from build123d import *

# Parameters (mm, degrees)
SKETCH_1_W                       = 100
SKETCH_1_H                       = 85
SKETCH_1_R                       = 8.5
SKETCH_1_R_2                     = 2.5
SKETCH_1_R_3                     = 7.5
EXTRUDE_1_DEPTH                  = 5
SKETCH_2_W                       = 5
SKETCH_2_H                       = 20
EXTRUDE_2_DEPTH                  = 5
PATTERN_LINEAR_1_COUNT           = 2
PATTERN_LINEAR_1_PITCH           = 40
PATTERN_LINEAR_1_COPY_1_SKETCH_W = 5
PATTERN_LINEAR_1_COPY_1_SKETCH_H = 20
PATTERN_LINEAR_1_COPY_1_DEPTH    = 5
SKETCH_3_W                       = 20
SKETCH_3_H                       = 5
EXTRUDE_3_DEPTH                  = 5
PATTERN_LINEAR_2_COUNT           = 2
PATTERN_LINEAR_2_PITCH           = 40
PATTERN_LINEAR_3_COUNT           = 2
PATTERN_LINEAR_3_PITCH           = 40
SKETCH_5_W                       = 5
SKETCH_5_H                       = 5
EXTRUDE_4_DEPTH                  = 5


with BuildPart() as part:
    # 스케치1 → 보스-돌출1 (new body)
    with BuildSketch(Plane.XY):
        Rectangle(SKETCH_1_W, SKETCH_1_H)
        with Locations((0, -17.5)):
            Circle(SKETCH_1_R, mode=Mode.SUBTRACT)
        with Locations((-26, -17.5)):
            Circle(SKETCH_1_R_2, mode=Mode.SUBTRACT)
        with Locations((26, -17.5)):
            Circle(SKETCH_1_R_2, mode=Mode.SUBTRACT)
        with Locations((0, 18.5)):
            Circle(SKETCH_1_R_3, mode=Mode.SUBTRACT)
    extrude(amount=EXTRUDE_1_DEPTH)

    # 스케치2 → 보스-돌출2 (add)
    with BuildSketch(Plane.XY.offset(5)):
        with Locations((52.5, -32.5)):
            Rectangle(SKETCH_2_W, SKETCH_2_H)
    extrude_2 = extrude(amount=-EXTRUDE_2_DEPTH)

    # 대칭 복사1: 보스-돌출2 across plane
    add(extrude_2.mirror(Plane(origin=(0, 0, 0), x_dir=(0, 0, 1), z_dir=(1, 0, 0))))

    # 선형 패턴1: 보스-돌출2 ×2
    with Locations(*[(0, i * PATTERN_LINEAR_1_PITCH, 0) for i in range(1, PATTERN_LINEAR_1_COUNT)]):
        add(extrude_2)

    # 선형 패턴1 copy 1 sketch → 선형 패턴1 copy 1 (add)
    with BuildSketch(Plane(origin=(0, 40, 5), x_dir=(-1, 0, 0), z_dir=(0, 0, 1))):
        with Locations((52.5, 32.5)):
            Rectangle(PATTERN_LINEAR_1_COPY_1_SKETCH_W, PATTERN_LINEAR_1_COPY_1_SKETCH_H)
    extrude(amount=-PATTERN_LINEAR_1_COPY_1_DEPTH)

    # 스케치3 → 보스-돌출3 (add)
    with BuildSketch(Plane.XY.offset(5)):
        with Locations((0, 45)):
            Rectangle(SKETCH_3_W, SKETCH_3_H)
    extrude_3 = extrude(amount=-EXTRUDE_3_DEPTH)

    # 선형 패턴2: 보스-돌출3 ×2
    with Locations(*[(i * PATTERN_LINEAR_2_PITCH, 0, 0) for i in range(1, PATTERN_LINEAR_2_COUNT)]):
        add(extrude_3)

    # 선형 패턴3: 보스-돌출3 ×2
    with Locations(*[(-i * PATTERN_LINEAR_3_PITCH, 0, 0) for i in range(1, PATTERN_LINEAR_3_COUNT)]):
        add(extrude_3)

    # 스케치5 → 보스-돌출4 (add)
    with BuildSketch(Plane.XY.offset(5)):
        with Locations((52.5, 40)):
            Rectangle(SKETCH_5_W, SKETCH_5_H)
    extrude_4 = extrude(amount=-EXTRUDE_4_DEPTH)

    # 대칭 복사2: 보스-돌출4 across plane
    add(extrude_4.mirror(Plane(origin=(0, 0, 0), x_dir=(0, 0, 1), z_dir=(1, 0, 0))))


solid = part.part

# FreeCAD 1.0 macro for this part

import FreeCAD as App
import Part
import Sketcher

doc = App.newDocument("Part")
body = doc.addObject("PartDesign::Body", "Body")

# Sketch on XY plane
sketch1 = body.newObject("Sketcher::SketchObject", "Sketch")
sketch1.AttachmentSupport = (doc.getObject("XY_Plane"), [""])
sketch1.MapMode = "FlatFace"
sketch1.addGeometry([
    Part.LineSegment(App.Vector(-50, 42.5, 0), App.Vector(-50, -42.5, 0)),  # 0
    Part.LineSegment(App.Vector(-50, -42.5, 0), App.Vector(50, -42.5, 0)),  # 1
    Part.LineSegment(App.Vector(50, -42.5, 0), App.Vector(50, 42.5, 0)),  # 2
    Part.LineSegment(App.Vector(50, 42.5, 0), App.Vector(-50, 42.5, 0)),  # 3
    Part.Circle(App.Vector(-26, -17.5, 0), App.Vector(0, 0, 1), 2.5),  # 4
    Part.Circle(App.Vector(0, -17.5, 0), App.Vector(0, 0, 1), 8.5),  # 5
    Part.Circle(App.Vector(26, -17.5, 0), App.Vector(0, 0, 1), 2.5),  # 6
    Part.Circle(App.Vector(0, 18.5, 0), App.Vector(0, 0, 1), 7.5),  # 7
], False)
sketch1.addConstraint([
    Sketcher.Constraint("Coincident", 0, 2, 1, 1),
    Sketcher.Constraint("Coincident", 1, 2, 2, 1),
    Sketcher.Constraint("Coincident", 2, 2, 3, 1),
    Sketcher.Constraint("Coincident", 3, 2, 0, 1),
    Sketcher.Constraint("Vertical", 0),
    Sketcher.Constraint("Horizontal", 1),
    Sketcher.Constraint("Vertical", 2),
    Sketcher.Constraint("Horizontal", 3),
    Sketcher.Constraint("Equal", 4, 6),
    Sketcher.Constraint("Symmetric", 0, 2, 2, 2, -1, 1),
    Sketcher.Constraint("Symmetric", 4, 3, 6, 3, -2),
    Sketcher.Constraint("PointOnObject", 5, 3, -2),
    Sketcher.Constraint("PointOnObject", 7, 3, -2),
    Sketcher.Constraint("Horizontal", 4, 3, 5, 3),
    Sketcher.Constraint("Diameter", 4, 5.0),
    Sketcher.Constraint("Diameter", 5, 17.0),
    Sketcher.Constraint("Diameter", 7, 15.0),
    Sketcher.Constraint("DistanceX", 1, 1, 1, 2, 100.0),
    Sketcher.Constraint("DistanceY", 0, 2, 0, 1, 85.0),
    Sketcher.Constraint("DistanceX", 4, 3, -1, 1, 26.0),
    Sketcher.Constraint("DistanceY", 5, 3, 7, 3, 36.0),
    Sketcher.Constraint("DistanceY", 0, 2, 4, 3, 25.0),
])
pad1 = body.newObject("PartDesign::Pad", "Pad")
pad1.Profile = sketch1
pad1.Length = 5

# Sketch on XY plane
sketch2 = body.newObject("Sketcher::SketchObject", "Sketch001")
sketch2.AttachmentSupport = (doc.getObject("XY_Plane"), [""])
sketch2.MapMode = "FlatFace"
sketch2.AttachmentOffset = App.Placement(App.Vector(0, 0, 5), App.Rotation())
sketch2.addGeometry([
    Part.LineSegment(App.Vector(50, -22, 0), App.Vector(50, -42, 0)),
    Part.LineSegment(App.Vector(50, -42, 0), App.Vector(55, -42, 0)),
    Part.LineSegment(App.Vector(55, -42, 0), App.Vector(55, -22, 0)),
    Part.LineSegment(App.Vector(55, -22, 0), App.Vector(50, -22, 0)),
], False)
sketch2.addConstraint([
    Sketcher.Constraint("Coincident", 0, 2, 1, 1),
    Sketcher.Constraint("Coincident", 1, 2, 2, 1),
    Sketcher.Constraint("Coincident", 2, 2, 3, 1),
    Sketcher.Constraint("Coincident", 3, 2, 0, 1),
    Sketcher.Constraint("Vertical", 0),
    Sketcher.Constraint("Horizontal", 1),
    Sketcher.Constraint("Vertical", 2),
    Sketcher.Constraint("Horizontal", 3),
    Sketcher.Constraint("DistanceX", 1, 1, 1, 2, 5.0),
    Sketcher.Constraint("DistanceY", 0, 2, 0, 1, 20.0),
    Sketcher.Constraint("DistanceX", -1, 1, 0, 2, 50.0),
    Sketcher.Constraint("DistanceY", 0, 2, -1, 1, 42.5),
])
pad2 = body.newObject("PartDesign::Pad", "Pad001")
pad2.Profile = sketch2
pad2.Length = 5
pad2.Reversed = True
doc.recompute()

mirrored = body.newObject("PartDesign::Mirrored", "Mirrored")
mirrored.Originals = [pad2]
mirrored.MirrorPlane = (doc.getObject("YZ_Plane"), [""])
body.Tip = mirrored
doc.recompute()

linearpattern = body.newObject("PartDesign::LinearPattern", "LinearPattern")
linearpattern.Originals = [pad2]
linearpattern.Direction = (doc.getObject("Y_Axis"), [""])
linearpattern.Mode = "offset"
linearpattern.Offset = 40
linearpattern.Occurrences = 2
body.Tip = linearpattern

# Sketch on XY plane
sketch3 = body.newObject("Sketcher::SketchObject", "Sketch002")
sketch3.AttachmentSupport = (doc.getObject("XY_Plane"), [""])
sketch3.MapMode = "FlatFace"
sketch3.AttachmentOffset = App.Placement(App.Vector(0, 0, 5), App.Rotation())
sketch3.addGeometry([
    Part.LineSegment(App.Vector(-50, -2, 0), App.Vector(-50, 18, 0)),
    Part.LineSegment(App.Vector(-50, 18, 0), App.Vector(-55, 18, 0)),
    Part.LineSegment(App.Vector(-55, 18, 0), App.Vector(-55, -2, 0)),
    Part.LineSegment(App.Vector(-55, -2, 0), App.Vector(-50, -2, 0)),
], False)
sketch3.addConstraint([
    Sketcher.Constraint("Coincident", 0, 2, 1, 1),
    Sketcher.Constraint("Coincident", 1, 2, 2, 1),
    Sketcher.Constraint("Coincident", 2, 2, 3, 1),
    Sketcher.Constraint("Coincident", 3, 2, 0, 1),
    Sketcher.Constraint("Vertical", 0),
    Sketcher.Constraint("Horizontal", 1),
    Sketcher.Constraint("Vertical", 2),
    Sketcher.Constraint("Horizontal", 3),
    Sketcher.Constraint("DistanceX", 1, 2, 1, 1, 5.0),
    Sketcher.Constraint("DistanceY", 0, 1, 0, 2, 20.0),
    Sketcher.Constraint("DistanceX", 0, 2, -1, 1, 50.0),
    Sketcher.Constraint("DistanceY", -1, 1, 0, 2, 17.5),
])
pad3 = body.newObject("PartDesign::Pad", "Pad002")
pad3.Profile = sketch3
pad3.Length = 5
pad3.Reversed = True

# Sketch on XY plane
sketch4 = body.newObject("Sketcher::SketchObject", "Sketch003")
sketch4.AttachmentSupport = (doc.getObject("XY_Plane"), [""])
sketch4.MapMode = "FlatFace"
sketch4.AttachmentOffset = App.Placement(App.Vector(0, 0, 5), App.Rotation())
sketch4.addGeometry([
    Part.LineSegment(App.Vector(-10, 48, 0), App.Vector(-10, 42, 0)),
    Part.LineSegment(App.Vector(-10, 42, 0), App.Vector(10, 42, 0)),
    Part.LineSegment(App.Vector(10, 42, 0), App.Vector(10, 48, 0)),
    Part.LineSegment(App.Vector(10, 48, 0), App.Vector(-10, 48, 0)),
], False)
sketch4.addConstraint([
    Sketcher.Constraint("Coincident", 0, 2, 1, 1),
    Sketcher.Constraint("Coincident", 1, 2, 2, 1),
    Sketcher.Constraint("Coincident", 2, 2, 3, 1),
    Sketcher.Constraint("Coincident", 3, 2, 0, 1),
    Sketcher.Constraint("Vertical", 0),
    Sketcher.Constraint("Horizontal", 1),
    Sketcher.Constraint("Vertical", 2),
    Sketcher.Constraint("Horizontal", 3),
    Sketcher.Constraint("DistanceX", 1, 1, 1, 2, 20.0),
    Sketcher.Constraint("DistanceY", 0, 2, 0, 1, 5.0),
    Sketcher.Constraint("DistanceX", 0, 2, -1, 1, 10.0),
    Sketcher.Constraint("DistanceY", -1, 1, 0, 2, 42.5),
])
pad4 = body.newObject("PartDesign::Pad", "Pad003")
pad4.Profile = sketch4
pad4.Length = 5
pad4.Reversed = True
doc.recompute()

linearpattern2 = body.newObject("PartDesign::LinearPattern", "LinearPattern001")
linearpattern2.Originals = [pad4]
linearpattern2.Direction = (doc.getObject("X_Axis"), [""])
linearpattern2.Mode = "offset"
linearpattern2.Offset = 40
linearpattern2.Occurrences = 2
body.Tip = linearpattern2
doc.recompute()

linearpattern3 = body.newObject("PartDesign::LinearPattern", "LinearPattern002")
linearpattern3.Originals = [pad4]
linearpattern3.Direction = (doc.getObject("X_Axis"), [""])
linearpattern3.Mode = "offset"
linearpattern3.Offset = 40
linearpattern3.Occurrences = 2
linearpattern3.Reversed = True
body.Tip = linearpattern3

# Sketch on XY plane
sketch5 = body.newObject("Sketcher::SketchObject", "Sketch004")
sketch5.AttachmentSupport = (doc.getObject("XY_Plane"), [""])
sketch5.MapMode = "FlatFace"
sketch5.AttachmentOffset = App.Placement(App.Vector(0, 0, 5), App.Rotation())
sketch5.addGeometry([
    Part.LineSegment(App.Vector(50, 42, 0), App.Vector(50, 38, 0)),
    Part.LineSegment(App.Vector(50, 38, 0), App.Vector(55, 38, 0)),
    Part.LineSegment(App.Vector(55, 38, 0), App.Vector(55, 42, 0)),
    Part.LineSegment(App.Vector(55, 42, 0), App.Vector(50, 42, 0)),
], False)
sketch5.addConstraint([
    Sketcher.Constraint("Coincident", 0, 2, 1, 1),
    Sketcher.Constraint("Coincident", 1, 2, 2, 1),
    Sketcher.Constraint("Coincident", 2, 2, 3, 1),
    Sketcher.Constraint("Coincident", 3, 2, 0, 1),
    Sketcher.Constraint("Vertical", 0),
    Sketcher.Constraint("Horizontal", 1),
    Sketcher.Constraint("Vertical", 2),
    Sketcher.Constraint("Horizontal", 3),
    Sketcher.Constraint("Equal", 3, 0),
    Sketcher.Constraint("DistanceX", 1, 1, 1, 2, 5.0),
    Sketcher.Constraint("DistanceX", -1, 1, 0, 2, 50.0),
    Sketcher.Constraint("DistanceY", -1, 1, 0, 2, 37.5),
])
pad5 = body.newObject("PartDesign::Pad", "Pad004")
pad5.Profile = sketch5
pad5.Length = 5
pad5.Reversed = True
doc.recompute()

mirrored2 = body.newObject("PartDesign::Mirrored", "Mirrored001")
mirrored2.Originals = [pad5]
mirrored2.MirrorPlane = (doc.getObject("YZ_Plane"), [""])
body.Tip = mirrored2

doc.recompute()
